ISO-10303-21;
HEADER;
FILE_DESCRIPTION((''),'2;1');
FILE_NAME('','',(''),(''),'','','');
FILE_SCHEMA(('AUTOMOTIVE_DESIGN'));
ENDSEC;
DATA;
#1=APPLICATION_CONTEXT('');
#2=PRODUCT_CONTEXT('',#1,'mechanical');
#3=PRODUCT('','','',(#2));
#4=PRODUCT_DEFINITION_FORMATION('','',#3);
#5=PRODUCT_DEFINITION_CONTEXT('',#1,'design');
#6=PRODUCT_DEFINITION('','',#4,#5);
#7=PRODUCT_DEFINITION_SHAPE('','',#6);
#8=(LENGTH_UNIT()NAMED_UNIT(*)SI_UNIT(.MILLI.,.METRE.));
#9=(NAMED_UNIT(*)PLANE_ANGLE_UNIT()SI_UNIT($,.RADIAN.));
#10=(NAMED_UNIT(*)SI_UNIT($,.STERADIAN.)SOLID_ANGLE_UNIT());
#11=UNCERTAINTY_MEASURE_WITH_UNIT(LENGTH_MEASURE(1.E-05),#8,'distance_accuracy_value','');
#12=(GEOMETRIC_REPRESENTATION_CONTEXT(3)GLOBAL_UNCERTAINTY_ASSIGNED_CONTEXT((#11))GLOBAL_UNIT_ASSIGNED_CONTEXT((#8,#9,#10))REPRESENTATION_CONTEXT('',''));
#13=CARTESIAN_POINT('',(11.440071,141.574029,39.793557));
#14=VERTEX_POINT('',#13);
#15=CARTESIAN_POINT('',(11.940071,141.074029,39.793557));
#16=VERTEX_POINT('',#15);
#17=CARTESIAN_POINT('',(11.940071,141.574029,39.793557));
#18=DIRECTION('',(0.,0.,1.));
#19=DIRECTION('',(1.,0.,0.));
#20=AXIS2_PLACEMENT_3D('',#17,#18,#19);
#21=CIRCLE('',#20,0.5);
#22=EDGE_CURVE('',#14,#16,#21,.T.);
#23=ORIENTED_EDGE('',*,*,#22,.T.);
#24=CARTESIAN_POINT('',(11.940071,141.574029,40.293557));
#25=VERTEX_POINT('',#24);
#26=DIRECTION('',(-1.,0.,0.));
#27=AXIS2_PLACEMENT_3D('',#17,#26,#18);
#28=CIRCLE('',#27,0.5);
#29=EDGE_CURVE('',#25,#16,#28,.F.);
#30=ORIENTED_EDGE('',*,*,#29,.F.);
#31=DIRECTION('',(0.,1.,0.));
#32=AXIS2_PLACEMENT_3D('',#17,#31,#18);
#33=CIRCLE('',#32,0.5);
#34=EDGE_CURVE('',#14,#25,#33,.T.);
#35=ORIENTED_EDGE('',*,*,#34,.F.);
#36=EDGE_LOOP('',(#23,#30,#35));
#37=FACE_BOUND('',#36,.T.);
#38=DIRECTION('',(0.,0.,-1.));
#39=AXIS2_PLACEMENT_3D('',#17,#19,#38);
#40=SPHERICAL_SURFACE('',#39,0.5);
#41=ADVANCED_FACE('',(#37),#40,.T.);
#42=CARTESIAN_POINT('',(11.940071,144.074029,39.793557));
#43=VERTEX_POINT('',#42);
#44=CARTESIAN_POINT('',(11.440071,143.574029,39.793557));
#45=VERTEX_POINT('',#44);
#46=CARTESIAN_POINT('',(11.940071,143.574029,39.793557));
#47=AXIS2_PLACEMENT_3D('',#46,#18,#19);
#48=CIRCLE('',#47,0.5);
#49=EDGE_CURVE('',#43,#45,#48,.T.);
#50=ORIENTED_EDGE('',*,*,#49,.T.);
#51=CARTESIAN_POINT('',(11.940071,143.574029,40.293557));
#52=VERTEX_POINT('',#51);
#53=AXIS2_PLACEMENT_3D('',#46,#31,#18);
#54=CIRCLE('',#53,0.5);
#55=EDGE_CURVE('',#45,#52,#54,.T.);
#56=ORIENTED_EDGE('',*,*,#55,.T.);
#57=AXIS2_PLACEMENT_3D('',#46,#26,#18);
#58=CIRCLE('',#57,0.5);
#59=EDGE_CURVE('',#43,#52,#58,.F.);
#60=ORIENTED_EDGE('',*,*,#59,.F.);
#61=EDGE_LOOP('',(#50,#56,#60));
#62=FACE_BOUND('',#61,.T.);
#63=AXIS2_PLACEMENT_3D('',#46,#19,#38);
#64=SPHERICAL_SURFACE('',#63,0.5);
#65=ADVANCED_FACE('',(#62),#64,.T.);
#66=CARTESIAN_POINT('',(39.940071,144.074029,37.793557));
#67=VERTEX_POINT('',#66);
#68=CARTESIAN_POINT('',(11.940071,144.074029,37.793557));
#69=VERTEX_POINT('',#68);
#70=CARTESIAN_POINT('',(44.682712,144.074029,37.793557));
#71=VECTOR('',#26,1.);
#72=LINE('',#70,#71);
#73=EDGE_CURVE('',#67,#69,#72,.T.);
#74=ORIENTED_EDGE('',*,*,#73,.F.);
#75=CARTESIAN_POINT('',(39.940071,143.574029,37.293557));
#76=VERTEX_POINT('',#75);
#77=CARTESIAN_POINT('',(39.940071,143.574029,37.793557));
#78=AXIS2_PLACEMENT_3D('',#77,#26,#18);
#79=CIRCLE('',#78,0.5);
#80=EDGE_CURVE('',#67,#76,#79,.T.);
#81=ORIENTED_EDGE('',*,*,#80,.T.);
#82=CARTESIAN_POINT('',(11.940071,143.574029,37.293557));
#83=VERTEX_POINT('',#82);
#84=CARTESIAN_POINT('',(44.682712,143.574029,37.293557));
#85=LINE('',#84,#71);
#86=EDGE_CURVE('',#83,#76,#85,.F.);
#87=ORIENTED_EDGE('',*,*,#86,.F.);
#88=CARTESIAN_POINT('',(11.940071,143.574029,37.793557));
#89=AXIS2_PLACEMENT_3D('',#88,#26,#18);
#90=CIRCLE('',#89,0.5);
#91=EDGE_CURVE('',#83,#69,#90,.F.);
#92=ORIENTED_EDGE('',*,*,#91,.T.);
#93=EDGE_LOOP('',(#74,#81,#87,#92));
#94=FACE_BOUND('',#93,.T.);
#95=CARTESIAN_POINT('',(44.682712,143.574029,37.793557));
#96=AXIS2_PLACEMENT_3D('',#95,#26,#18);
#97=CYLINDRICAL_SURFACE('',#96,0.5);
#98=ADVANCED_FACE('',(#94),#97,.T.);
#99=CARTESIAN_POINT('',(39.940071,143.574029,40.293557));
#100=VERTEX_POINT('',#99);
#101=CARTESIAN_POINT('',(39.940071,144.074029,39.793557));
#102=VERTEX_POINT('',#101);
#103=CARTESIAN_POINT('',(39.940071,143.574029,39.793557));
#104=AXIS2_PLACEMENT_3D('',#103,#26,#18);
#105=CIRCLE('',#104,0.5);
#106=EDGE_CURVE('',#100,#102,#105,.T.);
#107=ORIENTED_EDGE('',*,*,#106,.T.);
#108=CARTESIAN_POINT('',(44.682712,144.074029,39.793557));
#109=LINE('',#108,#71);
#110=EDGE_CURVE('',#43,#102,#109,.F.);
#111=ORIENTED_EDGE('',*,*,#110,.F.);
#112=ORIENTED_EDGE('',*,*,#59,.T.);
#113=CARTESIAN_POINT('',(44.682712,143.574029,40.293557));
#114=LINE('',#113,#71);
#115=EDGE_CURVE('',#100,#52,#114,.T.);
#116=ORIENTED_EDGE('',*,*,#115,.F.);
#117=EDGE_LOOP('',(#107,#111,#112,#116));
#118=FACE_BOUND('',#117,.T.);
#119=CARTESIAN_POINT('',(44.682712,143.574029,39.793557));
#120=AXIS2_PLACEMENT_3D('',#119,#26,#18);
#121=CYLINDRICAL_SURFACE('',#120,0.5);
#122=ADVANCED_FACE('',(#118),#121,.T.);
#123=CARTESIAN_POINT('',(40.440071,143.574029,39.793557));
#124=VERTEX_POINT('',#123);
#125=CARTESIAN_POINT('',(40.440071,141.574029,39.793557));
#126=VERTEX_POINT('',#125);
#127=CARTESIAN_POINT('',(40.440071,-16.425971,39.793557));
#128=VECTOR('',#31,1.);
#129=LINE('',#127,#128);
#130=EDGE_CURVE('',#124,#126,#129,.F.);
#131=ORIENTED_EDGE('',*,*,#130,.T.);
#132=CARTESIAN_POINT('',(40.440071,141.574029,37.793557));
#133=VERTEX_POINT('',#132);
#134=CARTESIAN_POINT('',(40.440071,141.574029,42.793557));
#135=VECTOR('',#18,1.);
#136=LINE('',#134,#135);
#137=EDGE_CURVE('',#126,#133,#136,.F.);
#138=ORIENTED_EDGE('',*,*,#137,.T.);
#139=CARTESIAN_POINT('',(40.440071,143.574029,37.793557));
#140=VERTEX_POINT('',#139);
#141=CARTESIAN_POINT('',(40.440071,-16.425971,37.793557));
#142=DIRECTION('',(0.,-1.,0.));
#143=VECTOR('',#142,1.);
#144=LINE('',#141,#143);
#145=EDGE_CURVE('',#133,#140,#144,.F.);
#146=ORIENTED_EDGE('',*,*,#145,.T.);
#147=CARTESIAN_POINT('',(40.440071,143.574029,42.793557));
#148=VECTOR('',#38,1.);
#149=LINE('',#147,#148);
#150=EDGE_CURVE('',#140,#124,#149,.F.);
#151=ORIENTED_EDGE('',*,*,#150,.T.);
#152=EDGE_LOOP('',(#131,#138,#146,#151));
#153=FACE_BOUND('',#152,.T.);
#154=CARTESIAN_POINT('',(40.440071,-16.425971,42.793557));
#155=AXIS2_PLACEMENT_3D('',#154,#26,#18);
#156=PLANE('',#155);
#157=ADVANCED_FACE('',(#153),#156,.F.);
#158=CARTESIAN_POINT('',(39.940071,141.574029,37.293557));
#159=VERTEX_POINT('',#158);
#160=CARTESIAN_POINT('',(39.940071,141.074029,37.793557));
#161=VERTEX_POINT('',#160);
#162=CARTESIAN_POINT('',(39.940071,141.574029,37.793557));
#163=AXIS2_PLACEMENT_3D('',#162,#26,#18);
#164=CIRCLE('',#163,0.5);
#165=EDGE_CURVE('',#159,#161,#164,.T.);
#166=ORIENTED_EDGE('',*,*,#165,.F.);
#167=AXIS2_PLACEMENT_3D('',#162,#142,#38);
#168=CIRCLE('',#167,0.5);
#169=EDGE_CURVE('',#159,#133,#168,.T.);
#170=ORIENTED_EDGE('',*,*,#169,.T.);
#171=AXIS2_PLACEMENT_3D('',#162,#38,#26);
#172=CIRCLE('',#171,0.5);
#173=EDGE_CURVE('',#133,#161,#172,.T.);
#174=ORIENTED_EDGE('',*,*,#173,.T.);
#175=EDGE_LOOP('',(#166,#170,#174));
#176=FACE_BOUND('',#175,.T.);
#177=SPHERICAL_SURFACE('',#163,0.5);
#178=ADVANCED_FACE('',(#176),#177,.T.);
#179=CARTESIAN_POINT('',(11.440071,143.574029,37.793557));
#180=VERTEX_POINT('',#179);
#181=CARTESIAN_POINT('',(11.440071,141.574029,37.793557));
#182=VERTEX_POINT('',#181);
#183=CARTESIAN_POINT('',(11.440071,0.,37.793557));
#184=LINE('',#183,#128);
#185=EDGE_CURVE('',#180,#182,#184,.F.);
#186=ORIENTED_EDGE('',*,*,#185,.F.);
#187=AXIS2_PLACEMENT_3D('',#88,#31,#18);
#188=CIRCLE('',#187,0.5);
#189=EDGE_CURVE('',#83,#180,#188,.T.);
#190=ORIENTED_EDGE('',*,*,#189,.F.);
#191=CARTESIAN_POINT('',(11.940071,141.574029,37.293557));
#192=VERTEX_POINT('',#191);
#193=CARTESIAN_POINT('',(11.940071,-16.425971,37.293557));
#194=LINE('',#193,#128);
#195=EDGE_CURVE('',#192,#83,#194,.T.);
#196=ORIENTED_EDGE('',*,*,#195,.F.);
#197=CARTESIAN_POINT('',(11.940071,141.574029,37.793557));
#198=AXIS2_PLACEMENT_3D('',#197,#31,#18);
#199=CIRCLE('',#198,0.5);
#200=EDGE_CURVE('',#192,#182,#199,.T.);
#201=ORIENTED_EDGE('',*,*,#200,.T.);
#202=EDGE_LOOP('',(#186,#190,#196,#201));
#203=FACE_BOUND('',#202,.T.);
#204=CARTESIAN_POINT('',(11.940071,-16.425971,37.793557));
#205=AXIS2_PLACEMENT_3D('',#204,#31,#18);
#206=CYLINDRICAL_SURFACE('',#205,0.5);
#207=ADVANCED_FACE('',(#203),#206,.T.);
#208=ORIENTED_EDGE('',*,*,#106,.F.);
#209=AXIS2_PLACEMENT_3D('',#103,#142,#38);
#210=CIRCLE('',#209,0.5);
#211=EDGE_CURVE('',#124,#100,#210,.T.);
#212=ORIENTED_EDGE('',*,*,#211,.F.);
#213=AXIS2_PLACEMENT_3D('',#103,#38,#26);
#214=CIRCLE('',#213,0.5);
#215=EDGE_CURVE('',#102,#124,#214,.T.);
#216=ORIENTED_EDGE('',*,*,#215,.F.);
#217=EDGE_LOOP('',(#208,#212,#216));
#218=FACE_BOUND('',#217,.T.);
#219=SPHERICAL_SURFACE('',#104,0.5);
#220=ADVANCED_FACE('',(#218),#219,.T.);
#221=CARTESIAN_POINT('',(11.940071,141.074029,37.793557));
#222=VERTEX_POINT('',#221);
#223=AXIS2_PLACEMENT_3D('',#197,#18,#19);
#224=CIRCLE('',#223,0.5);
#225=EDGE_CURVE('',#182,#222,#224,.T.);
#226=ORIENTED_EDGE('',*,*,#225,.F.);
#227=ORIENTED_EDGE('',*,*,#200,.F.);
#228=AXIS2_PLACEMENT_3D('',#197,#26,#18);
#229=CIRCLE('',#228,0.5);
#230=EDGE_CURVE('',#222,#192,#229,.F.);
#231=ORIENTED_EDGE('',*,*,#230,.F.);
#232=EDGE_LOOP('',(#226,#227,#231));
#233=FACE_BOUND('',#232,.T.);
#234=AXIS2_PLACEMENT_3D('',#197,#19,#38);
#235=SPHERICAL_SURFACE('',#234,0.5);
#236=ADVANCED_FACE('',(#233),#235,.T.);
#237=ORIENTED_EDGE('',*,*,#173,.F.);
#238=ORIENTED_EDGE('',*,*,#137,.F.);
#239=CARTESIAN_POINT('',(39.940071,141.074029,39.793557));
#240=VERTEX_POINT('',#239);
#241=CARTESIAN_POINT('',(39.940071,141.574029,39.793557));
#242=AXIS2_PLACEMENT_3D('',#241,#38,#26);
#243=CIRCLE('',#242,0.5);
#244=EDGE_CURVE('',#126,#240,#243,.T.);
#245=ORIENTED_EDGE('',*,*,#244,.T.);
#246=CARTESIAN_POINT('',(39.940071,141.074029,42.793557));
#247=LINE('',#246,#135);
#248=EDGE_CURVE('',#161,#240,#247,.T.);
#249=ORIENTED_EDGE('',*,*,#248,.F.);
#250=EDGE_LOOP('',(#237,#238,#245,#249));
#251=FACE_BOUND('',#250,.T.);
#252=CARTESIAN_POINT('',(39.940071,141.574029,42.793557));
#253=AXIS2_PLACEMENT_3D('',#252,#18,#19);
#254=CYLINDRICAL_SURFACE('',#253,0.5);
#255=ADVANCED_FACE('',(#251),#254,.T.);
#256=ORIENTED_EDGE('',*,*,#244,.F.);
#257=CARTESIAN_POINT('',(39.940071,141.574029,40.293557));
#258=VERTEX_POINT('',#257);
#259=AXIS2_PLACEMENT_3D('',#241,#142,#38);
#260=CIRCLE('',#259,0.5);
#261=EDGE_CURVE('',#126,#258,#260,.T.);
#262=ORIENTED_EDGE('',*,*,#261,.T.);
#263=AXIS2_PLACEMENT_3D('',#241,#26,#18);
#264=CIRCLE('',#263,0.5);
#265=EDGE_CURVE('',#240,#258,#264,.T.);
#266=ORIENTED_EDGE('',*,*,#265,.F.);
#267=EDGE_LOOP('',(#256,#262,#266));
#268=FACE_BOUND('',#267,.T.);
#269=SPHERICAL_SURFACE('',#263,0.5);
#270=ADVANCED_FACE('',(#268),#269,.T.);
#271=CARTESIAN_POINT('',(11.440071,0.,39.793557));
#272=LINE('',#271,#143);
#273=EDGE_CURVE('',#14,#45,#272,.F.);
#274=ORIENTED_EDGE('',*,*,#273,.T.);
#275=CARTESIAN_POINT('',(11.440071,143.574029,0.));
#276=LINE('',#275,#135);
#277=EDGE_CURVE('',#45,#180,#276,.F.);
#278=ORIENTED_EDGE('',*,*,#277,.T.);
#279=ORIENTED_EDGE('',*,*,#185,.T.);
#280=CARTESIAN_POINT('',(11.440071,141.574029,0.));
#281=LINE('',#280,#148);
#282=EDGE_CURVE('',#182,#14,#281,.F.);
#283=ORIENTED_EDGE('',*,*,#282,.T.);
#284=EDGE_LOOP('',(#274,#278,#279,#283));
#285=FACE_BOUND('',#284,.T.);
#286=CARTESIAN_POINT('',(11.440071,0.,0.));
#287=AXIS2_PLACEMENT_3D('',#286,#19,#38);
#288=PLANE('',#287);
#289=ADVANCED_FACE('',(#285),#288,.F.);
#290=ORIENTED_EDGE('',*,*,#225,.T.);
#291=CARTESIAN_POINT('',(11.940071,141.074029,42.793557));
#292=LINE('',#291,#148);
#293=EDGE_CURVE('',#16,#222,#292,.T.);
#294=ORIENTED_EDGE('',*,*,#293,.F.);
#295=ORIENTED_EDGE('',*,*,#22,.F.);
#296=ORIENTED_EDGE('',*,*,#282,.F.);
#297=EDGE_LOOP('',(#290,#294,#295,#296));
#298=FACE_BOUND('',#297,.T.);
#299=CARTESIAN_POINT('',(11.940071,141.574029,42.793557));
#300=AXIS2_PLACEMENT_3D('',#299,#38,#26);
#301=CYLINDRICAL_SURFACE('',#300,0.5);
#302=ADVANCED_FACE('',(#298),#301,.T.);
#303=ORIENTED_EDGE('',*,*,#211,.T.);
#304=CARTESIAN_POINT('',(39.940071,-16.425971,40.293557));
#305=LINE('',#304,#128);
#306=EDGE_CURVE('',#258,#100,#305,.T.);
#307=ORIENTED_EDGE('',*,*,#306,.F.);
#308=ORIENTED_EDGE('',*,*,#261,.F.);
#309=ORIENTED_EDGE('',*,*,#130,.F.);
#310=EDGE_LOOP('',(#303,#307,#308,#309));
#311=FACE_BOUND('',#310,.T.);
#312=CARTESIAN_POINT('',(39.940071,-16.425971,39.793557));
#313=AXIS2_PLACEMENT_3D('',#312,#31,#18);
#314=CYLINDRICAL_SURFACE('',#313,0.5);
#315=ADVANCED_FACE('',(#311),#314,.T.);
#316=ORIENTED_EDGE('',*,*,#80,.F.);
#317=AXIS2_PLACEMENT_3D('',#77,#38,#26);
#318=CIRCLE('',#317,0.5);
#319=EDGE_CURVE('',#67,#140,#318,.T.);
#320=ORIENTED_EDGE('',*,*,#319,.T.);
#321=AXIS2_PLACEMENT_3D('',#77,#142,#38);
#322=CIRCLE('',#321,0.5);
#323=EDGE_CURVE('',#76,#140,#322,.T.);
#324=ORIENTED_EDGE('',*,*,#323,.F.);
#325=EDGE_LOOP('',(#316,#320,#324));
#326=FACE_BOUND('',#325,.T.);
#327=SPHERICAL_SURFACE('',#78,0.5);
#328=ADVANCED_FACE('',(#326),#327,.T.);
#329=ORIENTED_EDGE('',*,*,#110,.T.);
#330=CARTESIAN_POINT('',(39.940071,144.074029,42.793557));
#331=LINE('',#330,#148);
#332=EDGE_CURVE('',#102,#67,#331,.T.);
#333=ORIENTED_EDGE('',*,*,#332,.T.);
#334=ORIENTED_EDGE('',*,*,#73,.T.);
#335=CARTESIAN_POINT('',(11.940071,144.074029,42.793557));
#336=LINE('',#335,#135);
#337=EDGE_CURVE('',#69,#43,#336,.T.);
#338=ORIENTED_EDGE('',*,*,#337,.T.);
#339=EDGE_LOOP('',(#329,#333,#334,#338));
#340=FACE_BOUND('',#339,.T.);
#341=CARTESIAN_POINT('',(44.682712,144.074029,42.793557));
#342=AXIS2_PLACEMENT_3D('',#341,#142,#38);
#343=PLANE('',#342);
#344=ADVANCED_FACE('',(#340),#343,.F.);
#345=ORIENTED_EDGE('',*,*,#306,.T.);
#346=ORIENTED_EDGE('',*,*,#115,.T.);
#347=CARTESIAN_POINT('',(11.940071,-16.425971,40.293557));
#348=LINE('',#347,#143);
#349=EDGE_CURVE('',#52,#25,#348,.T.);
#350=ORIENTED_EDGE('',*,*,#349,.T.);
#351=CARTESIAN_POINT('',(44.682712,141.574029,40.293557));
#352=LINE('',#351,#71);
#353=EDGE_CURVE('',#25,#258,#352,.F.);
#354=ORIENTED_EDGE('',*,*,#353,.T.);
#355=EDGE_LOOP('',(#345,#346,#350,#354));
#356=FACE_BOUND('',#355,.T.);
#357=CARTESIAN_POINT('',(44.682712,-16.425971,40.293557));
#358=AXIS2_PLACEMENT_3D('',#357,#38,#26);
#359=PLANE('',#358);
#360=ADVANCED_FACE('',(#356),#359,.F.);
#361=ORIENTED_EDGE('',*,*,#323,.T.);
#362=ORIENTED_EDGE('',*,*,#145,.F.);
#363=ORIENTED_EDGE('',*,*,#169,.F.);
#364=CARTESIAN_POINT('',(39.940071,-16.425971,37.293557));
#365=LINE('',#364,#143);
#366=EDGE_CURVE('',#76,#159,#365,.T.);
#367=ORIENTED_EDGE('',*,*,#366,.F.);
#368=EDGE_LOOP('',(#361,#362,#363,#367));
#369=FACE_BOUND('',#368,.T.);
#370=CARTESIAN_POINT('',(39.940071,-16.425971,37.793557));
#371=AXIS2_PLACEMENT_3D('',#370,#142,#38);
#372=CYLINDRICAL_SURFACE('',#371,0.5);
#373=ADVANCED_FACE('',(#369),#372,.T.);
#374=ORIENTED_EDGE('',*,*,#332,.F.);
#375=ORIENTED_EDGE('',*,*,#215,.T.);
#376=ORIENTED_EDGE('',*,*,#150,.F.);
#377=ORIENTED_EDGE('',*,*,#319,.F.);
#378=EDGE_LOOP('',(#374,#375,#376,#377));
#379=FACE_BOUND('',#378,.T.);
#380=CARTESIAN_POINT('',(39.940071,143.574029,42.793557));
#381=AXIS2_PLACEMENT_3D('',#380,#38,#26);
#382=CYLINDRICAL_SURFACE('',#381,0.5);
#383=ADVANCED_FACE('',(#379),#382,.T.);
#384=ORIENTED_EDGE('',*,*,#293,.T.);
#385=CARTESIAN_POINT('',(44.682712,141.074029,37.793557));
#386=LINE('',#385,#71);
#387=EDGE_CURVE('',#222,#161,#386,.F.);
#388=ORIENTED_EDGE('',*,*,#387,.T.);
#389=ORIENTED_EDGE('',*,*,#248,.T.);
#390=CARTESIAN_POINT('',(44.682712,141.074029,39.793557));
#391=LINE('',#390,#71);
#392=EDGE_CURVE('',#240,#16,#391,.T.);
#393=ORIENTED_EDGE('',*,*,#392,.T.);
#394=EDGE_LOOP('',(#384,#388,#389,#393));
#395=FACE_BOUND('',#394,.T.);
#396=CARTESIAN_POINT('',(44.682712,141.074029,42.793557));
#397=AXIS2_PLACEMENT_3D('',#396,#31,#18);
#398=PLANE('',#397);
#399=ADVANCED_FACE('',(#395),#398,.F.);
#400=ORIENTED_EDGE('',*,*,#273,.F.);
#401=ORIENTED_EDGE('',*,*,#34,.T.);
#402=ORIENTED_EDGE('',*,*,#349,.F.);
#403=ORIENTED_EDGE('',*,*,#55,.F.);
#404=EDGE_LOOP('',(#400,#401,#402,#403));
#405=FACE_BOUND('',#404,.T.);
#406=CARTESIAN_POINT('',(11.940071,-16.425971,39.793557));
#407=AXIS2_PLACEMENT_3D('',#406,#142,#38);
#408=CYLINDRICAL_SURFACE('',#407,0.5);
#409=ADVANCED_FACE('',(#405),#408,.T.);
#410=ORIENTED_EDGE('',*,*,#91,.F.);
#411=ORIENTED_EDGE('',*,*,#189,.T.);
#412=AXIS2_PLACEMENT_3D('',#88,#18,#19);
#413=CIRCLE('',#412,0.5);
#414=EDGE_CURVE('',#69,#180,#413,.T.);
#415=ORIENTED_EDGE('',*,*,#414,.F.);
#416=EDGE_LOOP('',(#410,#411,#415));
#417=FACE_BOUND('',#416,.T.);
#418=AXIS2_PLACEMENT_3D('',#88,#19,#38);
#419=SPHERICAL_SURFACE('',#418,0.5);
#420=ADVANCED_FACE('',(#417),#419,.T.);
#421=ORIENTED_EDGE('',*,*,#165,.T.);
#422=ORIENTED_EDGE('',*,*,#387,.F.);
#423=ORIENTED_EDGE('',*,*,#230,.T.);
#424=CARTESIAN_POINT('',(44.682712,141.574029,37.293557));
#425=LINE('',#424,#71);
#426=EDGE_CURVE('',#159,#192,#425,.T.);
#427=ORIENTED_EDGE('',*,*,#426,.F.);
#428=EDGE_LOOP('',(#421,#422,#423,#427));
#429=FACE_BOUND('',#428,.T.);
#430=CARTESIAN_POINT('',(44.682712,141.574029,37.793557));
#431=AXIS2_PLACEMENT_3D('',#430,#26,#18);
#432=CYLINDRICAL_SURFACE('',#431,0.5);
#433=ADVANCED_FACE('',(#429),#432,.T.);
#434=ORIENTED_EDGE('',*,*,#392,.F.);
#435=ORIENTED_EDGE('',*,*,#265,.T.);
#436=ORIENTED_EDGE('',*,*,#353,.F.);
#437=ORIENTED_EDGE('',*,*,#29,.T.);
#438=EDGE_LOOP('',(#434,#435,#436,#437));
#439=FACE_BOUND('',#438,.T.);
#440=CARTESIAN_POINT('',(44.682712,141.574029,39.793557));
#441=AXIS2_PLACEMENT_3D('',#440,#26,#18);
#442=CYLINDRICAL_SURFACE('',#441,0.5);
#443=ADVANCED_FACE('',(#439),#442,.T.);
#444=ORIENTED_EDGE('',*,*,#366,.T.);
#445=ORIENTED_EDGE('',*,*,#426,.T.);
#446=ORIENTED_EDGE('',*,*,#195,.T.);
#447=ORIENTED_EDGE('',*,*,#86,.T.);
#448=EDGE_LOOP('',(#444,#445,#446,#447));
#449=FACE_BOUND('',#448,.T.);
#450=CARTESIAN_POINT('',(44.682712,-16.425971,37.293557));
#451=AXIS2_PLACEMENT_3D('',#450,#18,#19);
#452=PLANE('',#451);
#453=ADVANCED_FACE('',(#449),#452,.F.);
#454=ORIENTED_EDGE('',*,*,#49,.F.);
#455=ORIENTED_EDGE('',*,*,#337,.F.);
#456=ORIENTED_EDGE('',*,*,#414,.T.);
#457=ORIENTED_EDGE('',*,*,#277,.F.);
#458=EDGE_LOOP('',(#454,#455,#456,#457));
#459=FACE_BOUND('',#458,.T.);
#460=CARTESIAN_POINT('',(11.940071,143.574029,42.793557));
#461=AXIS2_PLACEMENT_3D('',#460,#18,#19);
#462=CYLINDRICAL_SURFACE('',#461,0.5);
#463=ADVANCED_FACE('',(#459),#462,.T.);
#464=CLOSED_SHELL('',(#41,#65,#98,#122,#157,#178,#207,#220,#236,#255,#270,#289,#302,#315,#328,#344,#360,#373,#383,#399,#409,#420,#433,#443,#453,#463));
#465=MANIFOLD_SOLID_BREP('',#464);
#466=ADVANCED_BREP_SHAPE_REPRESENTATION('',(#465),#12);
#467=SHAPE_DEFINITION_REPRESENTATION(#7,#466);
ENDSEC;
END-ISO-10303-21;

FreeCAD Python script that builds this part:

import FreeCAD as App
import Part
import Sketcher
Q = App.Units.Quantity


def edges_at(feature, points):
    """Names of the edges that pass closest to the given points."""
    edges = feature.Shape.Edges
    near = lambda p: min(range(len(edges)), key=lambda i: edges[i].distToShape(Part.Vertex(*p))[0])
    return sorted({f"Edge{near(p) + 1}" for p in points})


def add_polygon(sketch, points):
    """Adds a closed chain of lines whose ends are joined by coincident constraints."""
    first, n = sketch.GeometryCount, len(points)
    for a, b in zip(points, points[1:] + points[:1]):
        sketch.addGeometry(Part.LineSegment(App.Vector(*a, 0), App.Vector(*b, 0)), False)
    for i in range(n):
        sketch.addConstraint(Sketcher.Constraint("Coincident", first + i, 2, first + (i + 1) % n, 1))

doc = App.newDocument("Part")
body = doc.addObject("PartDesign::Body", "Body")

# Sketch on YZ plane
sketch1 = doc.addObject("Sketcher::SketchObject", "Sketch")
body.addObject(sketch1)
sketch1.AttachmentSupport = (doc.YZ_Plane, [""])
sketch1.MapMode = "FlatFace"
sketch1.AttachmentOffset = App.Placement(App.Vector(0, 0, 11.440071), App.Rotation())
add_polygon(sketch1, [(144.1, 40.3), (141.1, 40.3), (141.1, 37.3), (144.1, 37.3)])  # lines 0-3
sketch1.addConstraint(Sketcher.Constraint("Horizontal", 0))
sketch1.addConstraint(Sketcher.Constraint("Vertical", 1))
sketch1.addConstraint(Sketcher.Constraint("Horizontal", 2))
sketch1.addConstraint(Sketcher.Constraint("Vertical", 3))
sketch1.addConstraint(Sketcher.Constraint("Equal", 2, 1))
sketch1.addConstraint(Sketcher.Constraint("DistanceX", 0, 2, 0, 1, Q("3 mm")))
sketch1.addConstraint(Sketcher.Constraint("DistanceX", -1, 1, 0, 2, Q("141.074029 mm")))
sketch1.addConstraint(Sketcher.Constraint("DistanceY", -1, 1, 0, 2, Q("40.293557 mm")))
pad1 = doc.addObject("PartDesign::Pad", "Pad")
body.addObject(pad1)
pad1.Profile = sketch1
pad1.Length = 29
doc.recompute()

fillet = doc.addObject("PartDesign::Fillet", "Fillet")
body.addObject(fillet)
fillet.Base = (pad1, edges_at(pad1, [
    (25.94, 144.074, 40.294),
    (25.94, 144.074, 37.294),
    (25.94, 141.074, 37.294),
    (25.94, 141.074, 40.294),
]))
fillet.Radius = 0.5
doc.recompute()

fillet2 = doc.addObject("PartDesign::Fillet", "Fillet001")
body.addObject(fillet2)
fillet2.Base = (fillet, edges_at(fillet, [
    (40.44, 144.074, 38.794),
    (11.44, 144.074, 38.794),
    (11.44, 142.574, 40.294),
    (11.44, 142.574, 37.294),
    (11.44, 141.074, 38.794),
    (11.44, 141.22, 40.147),
    (11.44, 141.22, 37.44),
    (11.44, 143.928, 40.147),
    (11.44, 143.928, 37.44),
    (40.44, 142.574, 37.294),
    (40.44, 141.074, 38.794),
    (40.44, 142.574, 40.294),
    (40.44, 141.22, 40.147),
    (40.44, 141.22, 37.44),
    (40.44, 143.928, 40.147),
    (40.44, 143.928, 37.44),
]))
fillet2.Radius = 0.5

doc.recompute()
